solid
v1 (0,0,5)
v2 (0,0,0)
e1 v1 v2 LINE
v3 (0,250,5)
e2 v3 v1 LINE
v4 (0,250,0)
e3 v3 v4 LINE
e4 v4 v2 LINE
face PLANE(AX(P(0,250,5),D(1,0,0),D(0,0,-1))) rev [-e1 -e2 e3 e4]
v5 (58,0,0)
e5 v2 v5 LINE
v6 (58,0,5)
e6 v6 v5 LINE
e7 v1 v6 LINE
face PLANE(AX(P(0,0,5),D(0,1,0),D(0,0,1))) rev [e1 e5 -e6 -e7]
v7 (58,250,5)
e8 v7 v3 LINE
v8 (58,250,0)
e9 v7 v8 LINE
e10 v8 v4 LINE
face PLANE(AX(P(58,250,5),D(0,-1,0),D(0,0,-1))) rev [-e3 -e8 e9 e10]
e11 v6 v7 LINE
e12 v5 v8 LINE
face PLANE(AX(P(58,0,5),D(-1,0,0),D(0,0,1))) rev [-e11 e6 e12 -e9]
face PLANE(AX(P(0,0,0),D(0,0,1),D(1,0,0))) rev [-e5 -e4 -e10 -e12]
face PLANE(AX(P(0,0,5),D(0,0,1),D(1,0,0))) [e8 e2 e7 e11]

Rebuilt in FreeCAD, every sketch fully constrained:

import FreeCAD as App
import Part
import Sketcher
from FreeCAD import Vector
Q = App.Units.Quantity

doc = App.newDocument("Part")
body = doc.addObject("PartDesign::Body", "Body")

sketch1 = body.newObject("Sketcher::SketchObject", "Sketch")
sketch1.AttachmentSupport = (doc.getObject("XY_Plane"), [""])
sketch1.MapMode = "FlatFace"
sketch1.addGeometry(Part.LineSegment(Vector(0, 250, 0), Vector(0, 0, 0)), False)
sketch1.addGeometry(Part.LineSegment(Vector(0, 0, 0), Vector(58, 0, 0)), False)
sketch1.addGeometry(Part.LineSegment(Vector(58, 0, 0), Vector(58, 250, 0)), False)
sketch1.addGeometry(Part.LineSegment(Vector(58, 250, 0), Vector(0, 250, 0)), False)
sketch1.addConstraint(Sketcher.Constraint("Coincident", 0, 2, 1, 1))
sketch1.addConstraint(Sketcher.Constraint("Coincident", 1, 2, 2, 1))
sketch1.addConstraint(Sketcher.Constraint("Coincident", 2, 2, 3, 1))
sketch1.addConstraint(Sketcher.Constraint("Coincident", 3, 2, 0, 1))
sketch1.addConstraint(Sketcher.Constraint("Vertical", 0))
sketch1.addConstraint(Sketcher.Constraint("Horizontal", 1))
sketch1.addConstraint(Sketcher.Constraint("Vertical", 2))
sketch1.addConstraint(Sketcher.Constraint("Horizontal", 3))
sketch1.addConstraint(Sketcher.Constraint("Coincident", 0, 2, -1, 1))
sketch1.addConstraint(Sketcher.Constraint("DistanceX", 1, 1, 1, 2, Q("58 mm")))
sketch1.addConstraint(Sketcher.Constraint("DistanceY", 0, 2, 0, 1, Q("250 mm")))
pad1 = body.newObject("PartDesign::Pad", "Pad")
pad1.Profile = sketch1
pad1.Length = 5

doc.recompute()
